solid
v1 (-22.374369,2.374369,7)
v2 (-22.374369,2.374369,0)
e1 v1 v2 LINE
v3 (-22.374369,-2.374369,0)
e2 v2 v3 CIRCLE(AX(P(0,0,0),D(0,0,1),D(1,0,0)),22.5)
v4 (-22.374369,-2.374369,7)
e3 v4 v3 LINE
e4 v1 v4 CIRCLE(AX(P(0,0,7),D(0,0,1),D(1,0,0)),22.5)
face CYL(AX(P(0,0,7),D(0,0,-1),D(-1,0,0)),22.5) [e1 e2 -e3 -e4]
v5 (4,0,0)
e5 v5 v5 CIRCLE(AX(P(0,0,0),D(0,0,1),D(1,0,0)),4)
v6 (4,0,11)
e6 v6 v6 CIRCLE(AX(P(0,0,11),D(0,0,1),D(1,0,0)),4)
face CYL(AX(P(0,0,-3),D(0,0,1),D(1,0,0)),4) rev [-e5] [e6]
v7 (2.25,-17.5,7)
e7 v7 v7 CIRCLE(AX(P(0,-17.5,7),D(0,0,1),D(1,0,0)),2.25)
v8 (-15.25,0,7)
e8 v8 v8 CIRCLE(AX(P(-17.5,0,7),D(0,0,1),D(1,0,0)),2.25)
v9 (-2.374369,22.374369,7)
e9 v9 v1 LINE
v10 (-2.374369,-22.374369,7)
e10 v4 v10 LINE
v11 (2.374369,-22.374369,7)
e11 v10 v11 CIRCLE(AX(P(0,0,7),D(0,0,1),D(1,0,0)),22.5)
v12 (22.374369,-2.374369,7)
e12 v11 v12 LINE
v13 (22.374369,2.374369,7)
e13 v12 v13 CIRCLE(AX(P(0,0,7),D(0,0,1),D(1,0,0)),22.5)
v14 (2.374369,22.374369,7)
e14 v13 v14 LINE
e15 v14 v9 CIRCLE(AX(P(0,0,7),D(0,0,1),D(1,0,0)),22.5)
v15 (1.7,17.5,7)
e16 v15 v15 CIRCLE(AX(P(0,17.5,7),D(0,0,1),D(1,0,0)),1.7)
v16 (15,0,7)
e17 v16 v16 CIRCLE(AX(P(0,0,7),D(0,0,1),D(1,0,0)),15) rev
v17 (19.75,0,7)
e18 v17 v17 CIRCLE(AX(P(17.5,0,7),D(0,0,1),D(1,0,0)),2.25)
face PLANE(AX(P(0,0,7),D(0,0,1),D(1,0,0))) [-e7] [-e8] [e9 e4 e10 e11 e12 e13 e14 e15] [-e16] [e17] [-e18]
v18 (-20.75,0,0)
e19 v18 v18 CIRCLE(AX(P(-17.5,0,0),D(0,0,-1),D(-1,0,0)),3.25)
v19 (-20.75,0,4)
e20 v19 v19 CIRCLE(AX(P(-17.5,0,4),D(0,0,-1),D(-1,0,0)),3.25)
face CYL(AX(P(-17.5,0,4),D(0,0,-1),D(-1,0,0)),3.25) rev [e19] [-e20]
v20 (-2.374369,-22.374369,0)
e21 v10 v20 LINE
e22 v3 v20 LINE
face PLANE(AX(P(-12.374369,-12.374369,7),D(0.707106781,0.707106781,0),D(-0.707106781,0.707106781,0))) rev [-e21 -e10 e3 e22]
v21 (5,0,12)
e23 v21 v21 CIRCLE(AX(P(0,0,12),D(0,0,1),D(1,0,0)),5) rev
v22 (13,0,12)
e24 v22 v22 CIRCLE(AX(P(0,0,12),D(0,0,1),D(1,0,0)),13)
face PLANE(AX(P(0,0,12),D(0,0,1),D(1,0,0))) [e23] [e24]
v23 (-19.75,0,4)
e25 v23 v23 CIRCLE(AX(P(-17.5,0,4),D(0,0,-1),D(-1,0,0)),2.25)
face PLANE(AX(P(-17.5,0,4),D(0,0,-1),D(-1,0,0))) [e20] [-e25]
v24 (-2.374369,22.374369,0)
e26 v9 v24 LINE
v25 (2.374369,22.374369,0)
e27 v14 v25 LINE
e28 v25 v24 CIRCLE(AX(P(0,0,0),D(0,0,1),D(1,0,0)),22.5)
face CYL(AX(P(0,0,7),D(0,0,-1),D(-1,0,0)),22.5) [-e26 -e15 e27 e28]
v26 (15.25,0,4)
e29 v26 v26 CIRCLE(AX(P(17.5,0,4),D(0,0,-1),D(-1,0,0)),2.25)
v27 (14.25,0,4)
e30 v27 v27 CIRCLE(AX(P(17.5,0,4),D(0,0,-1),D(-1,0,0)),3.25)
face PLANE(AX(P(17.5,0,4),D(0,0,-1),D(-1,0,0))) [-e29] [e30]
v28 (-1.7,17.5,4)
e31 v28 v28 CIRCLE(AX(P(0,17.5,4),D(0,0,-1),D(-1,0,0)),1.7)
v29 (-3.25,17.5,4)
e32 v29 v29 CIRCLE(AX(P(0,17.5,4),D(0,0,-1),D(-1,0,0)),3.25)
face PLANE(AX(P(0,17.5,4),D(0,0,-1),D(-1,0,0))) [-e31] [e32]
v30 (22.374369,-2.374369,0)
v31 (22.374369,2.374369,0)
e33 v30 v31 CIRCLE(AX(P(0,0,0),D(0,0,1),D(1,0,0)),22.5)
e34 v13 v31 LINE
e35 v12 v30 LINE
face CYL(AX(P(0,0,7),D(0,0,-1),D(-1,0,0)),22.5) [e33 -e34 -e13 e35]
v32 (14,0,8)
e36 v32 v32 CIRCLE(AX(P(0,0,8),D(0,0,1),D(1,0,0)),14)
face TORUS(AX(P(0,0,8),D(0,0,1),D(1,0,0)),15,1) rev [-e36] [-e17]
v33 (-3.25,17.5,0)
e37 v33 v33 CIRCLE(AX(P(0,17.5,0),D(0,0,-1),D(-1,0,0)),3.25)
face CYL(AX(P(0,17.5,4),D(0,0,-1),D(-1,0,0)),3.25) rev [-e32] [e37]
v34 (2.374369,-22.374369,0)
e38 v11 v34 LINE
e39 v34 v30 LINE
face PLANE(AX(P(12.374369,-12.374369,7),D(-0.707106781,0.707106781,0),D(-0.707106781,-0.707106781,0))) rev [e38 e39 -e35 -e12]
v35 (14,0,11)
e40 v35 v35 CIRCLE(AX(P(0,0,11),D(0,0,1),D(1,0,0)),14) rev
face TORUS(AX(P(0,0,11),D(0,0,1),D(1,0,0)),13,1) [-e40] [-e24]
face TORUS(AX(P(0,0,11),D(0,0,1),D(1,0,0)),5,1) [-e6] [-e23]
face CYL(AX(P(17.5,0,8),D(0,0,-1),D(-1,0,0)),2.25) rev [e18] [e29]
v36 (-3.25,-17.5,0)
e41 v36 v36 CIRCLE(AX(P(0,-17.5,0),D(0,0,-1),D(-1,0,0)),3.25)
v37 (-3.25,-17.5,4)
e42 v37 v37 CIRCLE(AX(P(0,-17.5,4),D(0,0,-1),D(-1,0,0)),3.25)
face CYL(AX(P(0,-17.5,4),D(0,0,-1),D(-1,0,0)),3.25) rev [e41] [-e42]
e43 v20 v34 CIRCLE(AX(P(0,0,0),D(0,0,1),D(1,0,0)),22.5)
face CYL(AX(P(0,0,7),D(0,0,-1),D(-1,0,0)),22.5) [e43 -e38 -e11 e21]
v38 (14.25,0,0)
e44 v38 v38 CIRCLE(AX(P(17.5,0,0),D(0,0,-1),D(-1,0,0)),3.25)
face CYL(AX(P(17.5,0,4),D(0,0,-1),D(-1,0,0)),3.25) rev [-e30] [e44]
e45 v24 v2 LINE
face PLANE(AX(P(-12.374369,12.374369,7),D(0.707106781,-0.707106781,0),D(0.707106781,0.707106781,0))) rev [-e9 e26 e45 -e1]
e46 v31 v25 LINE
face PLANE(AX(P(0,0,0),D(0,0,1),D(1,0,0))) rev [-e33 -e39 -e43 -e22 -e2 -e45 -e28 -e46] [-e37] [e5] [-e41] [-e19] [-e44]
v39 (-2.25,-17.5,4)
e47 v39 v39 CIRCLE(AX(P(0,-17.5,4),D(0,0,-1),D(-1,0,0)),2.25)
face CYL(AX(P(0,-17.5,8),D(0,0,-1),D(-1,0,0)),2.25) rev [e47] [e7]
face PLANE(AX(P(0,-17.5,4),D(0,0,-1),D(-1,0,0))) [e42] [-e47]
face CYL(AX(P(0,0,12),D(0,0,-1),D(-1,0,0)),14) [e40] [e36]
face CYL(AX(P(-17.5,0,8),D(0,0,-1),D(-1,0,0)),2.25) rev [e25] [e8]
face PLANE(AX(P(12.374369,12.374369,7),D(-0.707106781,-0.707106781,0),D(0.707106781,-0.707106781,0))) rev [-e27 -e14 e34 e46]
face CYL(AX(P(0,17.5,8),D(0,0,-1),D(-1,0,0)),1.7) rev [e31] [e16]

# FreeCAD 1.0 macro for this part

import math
import FreeCAD as App
import Part
import Sketcher

V = App.Vector
Q = App.Units.Quantity


def edges_at(feature, points):
    """Names of the edges that pass closest to the given points."""
    edges = feature.Shape.Edges
    near = lambda p: min(range(len(edges)), key=lambda i: edges[i].distToShape(Part.Vertex(*p))[0])
    return sorted({f"Edge{near(p) + 1}" for p in points})

doc = App.newDocument("Part")
body = doc.addObject("PartDesign::Body", "Body")

sketch1 = body.newObject("Sketcher::SketchObject", "Sketch")
sketch1.AttachmentSupport = (doc.getObject("XY_Plane"), [""])
sketch1.MapMode = "FlatFace"
sketch1.addGeometry([
    Part.ArcOfCircle(Part.Circle(V(0, 0, 0), V(0, 0, 1), 22.5), math.radians(173.94), math.radians(186.06)),
    Part.LineSegment(V(-22.4, -2.4, 0), V(-2.4, -22.4, 0)),
    Part.ArcOfCircle(Part.Circle(V(0, 0, 0), V(0, 0, 1), 22.5), math.radians(-96.06), math.radians(-83.94)),
    Part.LineSegment(V(2.4, -22.4, 0), V(22.4, -2.4, 0)),
    Part.ArcOfCircle(Part.Circle(V(0, 0, 0), V(0, 0, 1), 22.5), math.radians(-6.06), math.radians(6.06)),
    Part.LineSegment(V(22.4, 2.4, 0), V(2.4, 22.4, 0)),
    Part.ArcOfCircle(Part.Circle(V(0, 0, 0), V(0, 0, 1), 22.5), math.radians(83.94), math.radians(96.06)),
    Part.LineSegment(V(-2.4, 22.4, 0), V(-22.4, 2.4, 0)),
], False)
sketch1.addConstraint([
    Sketcher.Constraint("Coincident", 0, 2, 1, 1),
    Sketcher.Constraint("Coincident", 1, 2, 2, 1),
    Sketcher.Constraint("Coincident", 2, 2, 3, 1),
    Sketcher.Constraint("Coincident", 3, 2, 4, 1),
    Sketcher.Constraint("Coincident", 4, 2, 5, 1),
    Sketcher.Constraint("Coincident", 5, 2, 6, 1),
    Sketcher.Constraint("Coincident", 6, 2, 7, 1),
    Sketcher.Constraint("Coincident", 7, 2, 0, 1),
    Sketcher.Constraint("Coincident", 0, 3, -1, 1),
    Sketcher.Constraint("Coincident", 2, 3, -1, 1),
    Sketcher.Constraint("Coincident", 4, 3, -1, 1),
    Sketcher.Constraint("Coincident", 6, 3, -1, 1),
    Sketcher.Constraint("Equal", 0, 2),
    Sketcher.Constraint("Equal", 2, 4),
    Sketcher.Constraint("Equal", 4, 6),
    Sketcher.Constraint("Perpendicular", 1, 3),
    Sketcher.Constraint("Perpendicular", 3, 5),
    Sketcher.Constraint("Perpendicular", 5, 7),
    Sketcher.Constraint("Horizontal", 1, 2, 2, 2),
    Sketcher.Constraint("Horizontal", 0, 2, 3, 2),
    Sketcher.Constraint("Horizontal", 5, 2, 6, 2),
    Sketcher.Constraint("Vertical", 3, 2, 4, 2),
    Sketcher.Constraint("Radius", 0, Q("22.5 mm")),
    Sketcher.Constraint("DistanceX", 0, 2, 1, 2, Q("20 mm")),
])
pad1 = body.newObject("PartDesign::Pad", "Pad")
pad1.Profile = sketch1
pad1.Length = 7

sketch2 = body.newObject("Sketcher::SketchObject", "Sketch001")
sketch2.AttachmentSupport = (doc.getObject("XY_Plane"), [""])
sketch2.MapMode = "FlatFace"
sketch2.addGeometry([
    Part.Circle(V(0, 17.5, 0), V(0, 0, 1), 3.2),
    Part.Circle(V(17.5, 0, 0), V(0, 0, 1), 3.2),
    Part.Circle(V(0, -17.5, 0), V(0, 0, 1), 3.2),
    Part.Circle(V(-17.5, 0, 0), V(0, 0, 1), 3.2),
], False)
sketch2.addConstraint([
    Sketcher.Constraint("Equal", 0, 1),
    Sketcher.Constraint("Equal", 1, 2),
    Sketcher.Constraint("Equal", 2, 3),
    Sketcher.Constraint("Symmetric", 0, 3, 2, 3, -1, 1),
    Sketcher.Constraint("Symmetric", 1, 3, 3, 3, -1, 1),
    Sketcher.Constraint("PointOnObject", 0, 3, -2),
    Sketcher.Constraint("PointOnObject", 1, 3, -1),
    Sketcher.Constraint("Diameter", 0, Q("6.5 mm")),
    Sketcher.Constraint("DistanceY", 2, 3, 0, 3, Q("35 mm")),
    Sketcher.Constraint("DistanceX", 3, 3, 1, 3, Q("35 mm")),
])
pocket1 = body.newObject("PartDesign::Pocket", "Pocket")
pocket1.Profile = sketch2
pocket1.Length = 4
pocket1.Reversed = True

sketch3 = body.newObject("Sketcher::SketchObject", "Sketch002")
sketch3.AttachmentSupport = (doc.getObject("XY_Plane"), [""])
sketch3.MapMode = "FlatFace"
sketch3.AttachmentOffset = App.Placement(V(0, 0, 4), App.Rotation())
sketch3.addGeometry([
    Part.Circle(V(0, 17.5, 0), V(0, 0, 1), 1.7),
    Part.Circle(V(17.5, 0, 0), V(0, 0, 1), 2.2),
    Part.Circle(V(-17.5, 0, 0), V(0, 0, 1), 2.2),
    Part.Circle(V(0, -17.5, 0), V(0, 0, 1), 2.2),
], False)
sketch3.addConstraint([
    Sketcher.Constraint("Equal", 1, 2),
    Sketcher.Constraint("Equal", 2, 3),
    Sketcher.Constraint("Symmetric", 1, 3, 2, 3, -1, 1),
    Sketcher.Constraint("Symmetric", 0, 3, 3, 3, -1, 1),
    Sketcher.Constraint("PointOnObject", 0, 3, -2),
    Sketcher.Constraint("PointOnObject", 1, 3, -1),
    Sketcher.Constraint("Diameter", 0, Q("3.4 mm")),
    Sketcher.Constraint("Diameter", 1, Q("4.5 mm")),
    Sketcher.Constraint("DistanceX", 2, 3, 1, 3, Q("35 mm")),
    Sketcher.Constraint("DistanceY", 3, 3, 0, 3, Q("35 mm")),
])
pocket2 = body.newObject("PartDesign::Pocket", "Pocket001")
pocket2.Profile = sketch3
pocket2.Length = 4
pocket2.Reversed = True

sketch4 = body.newObject("Sketcher::SketchObject", "Sketch003")
sketch4.AttachmentSupport = (doc.getObject("XY_Plane"), [""])
sketch4.MapMode = "FlatFace"
sketch4.AttachmentOffset = App.Placement(V(0, 0, 7), App.Rotation())
sketch4.addGeometry(Part.Circle(V(0, 0, 0), V(0, 0, 1), 14), False)
sketch4.addConstraint([
    Sketcher.Constraint("Coincident", 0, 3, -1, 1),
    Sketcher.Constraint("Diameter", 0, Q("28 mm")),
])
pad2 = body.newObject("PartDesign::Pad", "Pad001")
pad2.Profile = sketch4
pad2.Length = 5

sketch5 = body.newObject("Sketcher::SketchObject", "Sketch004")
sketch5.AttachmentSupport = (doc.getObject("XY_Plane"), [""])
sketch5.MapMode = "FlatFace"
sketch5.AttachmentOffset = App.Placement(V(0, 0, 12), App.Rotation())
sketch5.addGeometry(Part.Circle(V(0, 0, 0), V(0, 0, 1), 4), False)
sketch5.addConstraint([
    Sketcher.Constraint("Coincident", 0, 3, -1, 1),
    Sketcher.Constraint("Diameter", 0, Q("8 mm")),
])
pocket3 = body.newObject("PartDesign::Pocket", "Pocket002")
pocket3.Profile = sketch5
pocket3.Length = 15
doc.recompute()

fillet = body.newObject("PartDesign::Fillet", "Fillet")
fillet.Base = (pocket3, edges_at(pocket3, [(-14, 0, 7), (-14, 0, 12), (-4, 0, 12)]))
fillet.Radius = 1

doc.recompute()
